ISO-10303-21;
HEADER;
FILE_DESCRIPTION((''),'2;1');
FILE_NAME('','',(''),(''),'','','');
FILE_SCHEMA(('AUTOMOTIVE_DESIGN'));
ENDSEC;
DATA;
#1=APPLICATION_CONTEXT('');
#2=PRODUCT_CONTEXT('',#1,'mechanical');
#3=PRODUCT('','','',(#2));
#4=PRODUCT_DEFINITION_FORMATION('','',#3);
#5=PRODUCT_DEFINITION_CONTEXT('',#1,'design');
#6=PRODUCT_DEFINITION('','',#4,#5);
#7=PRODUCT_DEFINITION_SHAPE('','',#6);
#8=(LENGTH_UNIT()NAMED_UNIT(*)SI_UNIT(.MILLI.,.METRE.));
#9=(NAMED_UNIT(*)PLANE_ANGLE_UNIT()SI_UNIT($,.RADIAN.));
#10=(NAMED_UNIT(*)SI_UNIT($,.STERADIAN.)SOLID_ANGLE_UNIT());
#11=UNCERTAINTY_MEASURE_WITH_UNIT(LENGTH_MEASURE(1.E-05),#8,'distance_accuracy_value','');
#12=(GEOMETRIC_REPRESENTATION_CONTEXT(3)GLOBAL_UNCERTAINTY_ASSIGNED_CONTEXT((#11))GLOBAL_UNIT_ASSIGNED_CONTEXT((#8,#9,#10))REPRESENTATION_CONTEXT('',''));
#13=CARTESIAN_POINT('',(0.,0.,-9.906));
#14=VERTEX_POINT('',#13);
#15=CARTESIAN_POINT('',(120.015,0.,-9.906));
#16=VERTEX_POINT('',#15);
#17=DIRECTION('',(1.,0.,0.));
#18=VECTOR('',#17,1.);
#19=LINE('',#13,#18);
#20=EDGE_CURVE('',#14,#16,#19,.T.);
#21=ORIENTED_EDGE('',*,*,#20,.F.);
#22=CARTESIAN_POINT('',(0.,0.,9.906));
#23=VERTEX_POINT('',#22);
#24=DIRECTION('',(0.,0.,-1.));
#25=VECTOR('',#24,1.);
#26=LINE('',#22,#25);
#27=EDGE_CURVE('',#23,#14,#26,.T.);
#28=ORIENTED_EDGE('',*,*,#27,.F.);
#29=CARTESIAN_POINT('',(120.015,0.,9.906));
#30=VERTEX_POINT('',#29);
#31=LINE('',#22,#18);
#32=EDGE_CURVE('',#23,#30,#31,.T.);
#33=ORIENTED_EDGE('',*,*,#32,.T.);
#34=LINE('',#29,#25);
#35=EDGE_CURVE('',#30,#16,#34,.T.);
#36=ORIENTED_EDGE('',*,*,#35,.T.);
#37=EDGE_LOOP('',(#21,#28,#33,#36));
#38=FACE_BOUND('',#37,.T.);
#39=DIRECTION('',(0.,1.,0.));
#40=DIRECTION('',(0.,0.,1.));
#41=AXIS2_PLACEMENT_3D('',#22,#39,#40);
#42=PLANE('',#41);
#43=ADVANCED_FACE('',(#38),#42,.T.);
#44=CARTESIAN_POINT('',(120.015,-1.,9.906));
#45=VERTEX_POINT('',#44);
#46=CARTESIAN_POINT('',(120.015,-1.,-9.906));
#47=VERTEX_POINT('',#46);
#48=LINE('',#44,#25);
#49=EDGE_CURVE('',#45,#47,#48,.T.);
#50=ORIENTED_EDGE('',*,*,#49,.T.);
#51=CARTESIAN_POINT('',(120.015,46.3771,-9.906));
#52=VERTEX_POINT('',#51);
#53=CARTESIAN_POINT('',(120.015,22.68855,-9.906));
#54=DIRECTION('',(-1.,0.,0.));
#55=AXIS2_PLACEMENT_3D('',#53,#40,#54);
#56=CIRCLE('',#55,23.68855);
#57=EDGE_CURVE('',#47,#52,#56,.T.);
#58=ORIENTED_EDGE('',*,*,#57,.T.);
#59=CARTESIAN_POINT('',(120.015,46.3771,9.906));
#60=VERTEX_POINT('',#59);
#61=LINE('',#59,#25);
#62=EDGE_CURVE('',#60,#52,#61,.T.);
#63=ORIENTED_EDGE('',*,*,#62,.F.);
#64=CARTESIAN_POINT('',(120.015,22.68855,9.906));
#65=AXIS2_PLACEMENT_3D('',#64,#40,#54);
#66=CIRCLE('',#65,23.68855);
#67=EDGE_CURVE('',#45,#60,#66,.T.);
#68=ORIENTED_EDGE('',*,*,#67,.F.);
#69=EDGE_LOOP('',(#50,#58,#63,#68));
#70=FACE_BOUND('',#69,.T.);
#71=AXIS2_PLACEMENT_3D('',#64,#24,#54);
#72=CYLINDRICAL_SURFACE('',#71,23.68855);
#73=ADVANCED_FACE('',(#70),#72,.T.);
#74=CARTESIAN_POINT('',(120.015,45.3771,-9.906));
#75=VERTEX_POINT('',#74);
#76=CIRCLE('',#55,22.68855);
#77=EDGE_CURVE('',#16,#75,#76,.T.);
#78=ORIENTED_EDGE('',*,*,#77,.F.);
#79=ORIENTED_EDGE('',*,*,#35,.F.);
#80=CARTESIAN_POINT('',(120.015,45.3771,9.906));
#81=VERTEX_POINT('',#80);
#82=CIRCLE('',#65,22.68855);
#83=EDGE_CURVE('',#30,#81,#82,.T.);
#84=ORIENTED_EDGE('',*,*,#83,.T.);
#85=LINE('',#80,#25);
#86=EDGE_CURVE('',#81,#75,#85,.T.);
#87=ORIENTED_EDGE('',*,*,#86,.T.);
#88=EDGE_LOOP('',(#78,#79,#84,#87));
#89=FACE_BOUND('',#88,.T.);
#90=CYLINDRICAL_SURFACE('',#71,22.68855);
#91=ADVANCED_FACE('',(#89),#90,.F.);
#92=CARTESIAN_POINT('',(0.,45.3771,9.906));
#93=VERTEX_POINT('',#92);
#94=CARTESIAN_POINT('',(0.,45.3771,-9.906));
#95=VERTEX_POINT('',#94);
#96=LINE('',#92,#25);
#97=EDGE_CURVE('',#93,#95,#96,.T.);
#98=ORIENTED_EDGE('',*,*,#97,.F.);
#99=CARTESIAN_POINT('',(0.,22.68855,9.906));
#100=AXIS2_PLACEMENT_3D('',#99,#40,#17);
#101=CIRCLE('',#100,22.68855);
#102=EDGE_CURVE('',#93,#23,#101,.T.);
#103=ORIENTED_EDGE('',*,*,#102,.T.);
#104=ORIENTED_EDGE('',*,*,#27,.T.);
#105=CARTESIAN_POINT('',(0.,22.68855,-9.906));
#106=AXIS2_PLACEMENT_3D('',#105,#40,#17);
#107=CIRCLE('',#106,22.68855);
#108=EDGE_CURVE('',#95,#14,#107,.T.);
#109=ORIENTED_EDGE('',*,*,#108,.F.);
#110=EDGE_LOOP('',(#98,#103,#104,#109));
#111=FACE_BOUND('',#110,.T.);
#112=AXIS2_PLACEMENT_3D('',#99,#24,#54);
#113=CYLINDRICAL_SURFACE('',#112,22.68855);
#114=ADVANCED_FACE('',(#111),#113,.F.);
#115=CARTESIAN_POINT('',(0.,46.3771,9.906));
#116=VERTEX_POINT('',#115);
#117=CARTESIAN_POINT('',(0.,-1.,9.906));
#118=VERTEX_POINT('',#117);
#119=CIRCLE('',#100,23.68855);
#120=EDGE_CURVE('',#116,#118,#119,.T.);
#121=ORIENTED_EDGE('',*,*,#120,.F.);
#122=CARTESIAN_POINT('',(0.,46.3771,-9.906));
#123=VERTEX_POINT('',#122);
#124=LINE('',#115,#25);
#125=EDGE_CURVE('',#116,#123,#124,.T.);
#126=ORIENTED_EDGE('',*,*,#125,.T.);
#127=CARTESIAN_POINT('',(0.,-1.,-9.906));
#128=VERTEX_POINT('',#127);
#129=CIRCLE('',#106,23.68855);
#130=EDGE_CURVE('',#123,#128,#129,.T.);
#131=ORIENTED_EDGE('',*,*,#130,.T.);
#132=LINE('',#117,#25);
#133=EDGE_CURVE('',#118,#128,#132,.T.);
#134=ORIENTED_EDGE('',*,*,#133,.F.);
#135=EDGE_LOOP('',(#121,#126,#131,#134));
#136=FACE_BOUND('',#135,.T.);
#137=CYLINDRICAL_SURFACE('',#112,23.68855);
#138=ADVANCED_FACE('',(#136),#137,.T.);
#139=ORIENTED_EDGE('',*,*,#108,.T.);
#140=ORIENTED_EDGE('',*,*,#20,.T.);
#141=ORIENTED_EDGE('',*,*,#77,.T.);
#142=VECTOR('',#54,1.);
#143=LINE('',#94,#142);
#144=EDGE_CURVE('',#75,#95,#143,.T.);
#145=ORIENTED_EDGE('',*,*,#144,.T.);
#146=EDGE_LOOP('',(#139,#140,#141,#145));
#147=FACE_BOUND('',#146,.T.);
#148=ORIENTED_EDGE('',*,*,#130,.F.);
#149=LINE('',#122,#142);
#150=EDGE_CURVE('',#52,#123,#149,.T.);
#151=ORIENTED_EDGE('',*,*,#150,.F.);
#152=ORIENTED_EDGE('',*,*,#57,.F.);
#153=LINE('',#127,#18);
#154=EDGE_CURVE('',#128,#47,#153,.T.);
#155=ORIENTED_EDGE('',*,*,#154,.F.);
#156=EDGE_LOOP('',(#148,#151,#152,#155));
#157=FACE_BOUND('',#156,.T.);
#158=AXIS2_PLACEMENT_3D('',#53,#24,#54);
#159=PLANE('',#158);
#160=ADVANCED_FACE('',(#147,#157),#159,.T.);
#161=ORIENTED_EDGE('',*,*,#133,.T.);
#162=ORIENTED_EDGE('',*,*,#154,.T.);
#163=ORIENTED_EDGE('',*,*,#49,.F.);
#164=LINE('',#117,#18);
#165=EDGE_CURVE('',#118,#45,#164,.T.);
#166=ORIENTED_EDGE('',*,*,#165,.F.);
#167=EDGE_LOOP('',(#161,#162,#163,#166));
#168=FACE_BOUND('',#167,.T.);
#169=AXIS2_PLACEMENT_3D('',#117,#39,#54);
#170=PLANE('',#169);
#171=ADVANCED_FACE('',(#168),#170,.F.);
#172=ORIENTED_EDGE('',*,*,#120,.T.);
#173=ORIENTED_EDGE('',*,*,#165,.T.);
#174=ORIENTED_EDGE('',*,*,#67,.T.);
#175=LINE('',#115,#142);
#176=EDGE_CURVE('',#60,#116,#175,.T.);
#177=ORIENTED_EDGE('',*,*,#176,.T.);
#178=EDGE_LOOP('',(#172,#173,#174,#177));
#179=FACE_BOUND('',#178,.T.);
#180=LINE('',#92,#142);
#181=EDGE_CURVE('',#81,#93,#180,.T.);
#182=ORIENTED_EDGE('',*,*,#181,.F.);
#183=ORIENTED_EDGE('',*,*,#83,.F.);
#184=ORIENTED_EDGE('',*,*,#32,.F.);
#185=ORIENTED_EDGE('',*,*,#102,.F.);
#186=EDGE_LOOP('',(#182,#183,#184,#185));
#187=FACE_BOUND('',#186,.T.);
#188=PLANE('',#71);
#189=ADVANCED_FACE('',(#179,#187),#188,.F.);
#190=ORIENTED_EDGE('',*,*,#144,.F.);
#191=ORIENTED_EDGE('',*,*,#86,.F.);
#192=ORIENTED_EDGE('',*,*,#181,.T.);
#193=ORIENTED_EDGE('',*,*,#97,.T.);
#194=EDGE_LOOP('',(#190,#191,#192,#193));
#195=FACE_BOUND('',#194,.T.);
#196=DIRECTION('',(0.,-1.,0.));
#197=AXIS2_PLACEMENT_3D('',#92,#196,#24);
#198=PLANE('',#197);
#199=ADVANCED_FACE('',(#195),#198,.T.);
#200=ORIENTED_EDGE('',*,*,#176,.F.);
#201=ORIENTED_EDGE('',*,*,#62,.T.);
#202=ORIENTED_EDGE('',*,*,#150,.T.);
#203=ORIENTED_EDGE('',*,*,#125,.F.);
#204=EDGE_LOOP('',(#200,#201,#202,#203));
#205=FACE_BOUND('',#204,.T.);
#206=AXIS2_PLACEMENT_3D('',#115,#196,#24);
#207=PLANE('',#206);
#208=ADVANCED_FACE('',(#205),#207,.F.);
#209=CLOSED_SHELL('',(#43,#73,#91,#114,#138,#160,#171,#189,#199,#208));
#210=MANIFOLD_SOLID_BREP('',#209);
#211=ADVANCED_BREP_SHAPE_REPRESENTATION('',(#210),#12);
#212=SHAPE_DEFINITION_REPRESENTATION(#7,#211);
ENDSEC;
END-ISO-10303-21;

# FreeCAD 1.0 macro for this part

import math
import FreeCAD as App
import Part
import Sketcher
from FreeCAD import Vector
Q = App.Units.Quantity

doc = App.newDocument("Part")
params = doc.addObject("Spreadsheet::Sheet", "Params")
for row, (alias, value) in enumerate([
    ("sketch1_width", "4.725 in"),
    ("pad1_length", "0.78 in"),
], start=1):
    params.set(f"A{row}", alias)
    params.set(f"B{row}", "=" + value)
    params.setAlias(f"B{row}", alias)

body = doc.addObject("PartDesign::Body", "Body")

# Sketch on XY plane
sketch1 = body.newObject("Sketcher::SketchObject", "Sketch")
sketch1.AttachmentSupport = (doc.getObject("XY_Plane"), [""])
sketch1.MapMode = "FlatFace"
sketch1.addGeometry([
    Part.LineSegment(Vector(120, 46, 0), Vector(0, 46, 0)),  # 0
    Part.ArcOfCircle(Part.Circle(Vector(0, 23, 0), Vector(0, 0, 1), 24), math.radians(90), math.radians(270)),  # 1
    Part.LineSegment(Vector(0, -1, 0), Vector(120, -1, 0)),  # 2
    Part.ArcOfCircle(Part.Circle(Vector(120, 23, 0), Vector(0, 0, 1), 24), math.radians(-90), math.radians(90)),  # 3
    Part.LineSegment(Vector(0, 45, 0), Vector(120, 45, 0)),  # 4
    Part.ArcOfCircle(Part.Circle(Vector(120, 23, 0), Vector(0, 0, 1), 23), math.radians(-90), math.radians(90)),  # 5
    Part.LineSegment(Vector(120, 0, 0), Vector(0, 0, 0)),  # 6
    Part.ArcOfCircle(Part.Circle(Vector(0, 23, 0), Vector(0, 0, 1), 23), math.radians(90), math.radians(270)),  # 7
], False)
sketch1.addConstraint([
    Sketcher.Constraint("Tangent", 0, 2, 1, 1),
    Sketcher.Constraint("Tangent", 1, 2, 2, 1),
    Sketcher.Constraint("Tangent", 2, 2, 3, 1),
    Sketcher.Constraint("Tangent", 3, 2, 0, 1),
    Sketcher.Constraint("Tangent", 4, 2, 5, 2),
    Sketcher.Constraint("Tangent", 5, 1, 6, 1),
    Sketcher.Constraint("Tangent", 6, 2, 7, 2),
    Sketcher.Constraint("Tangent", 7, 1, 4, 1),
    Sketcher.Constraint("Horizontal", 0),
    Sketcher.Constraint("Horizontal", 2),
    Sketcher.Constraint("Horizontal", 4),
    Sketcher.Constraint("Horizontal", 6),
    Sketcher.Constraint("Coincident", 6, 2, -1, 1),
    Sketcher.Constraint("Coincident", 5, 3, 3, 3),
    Sketcher.Constraint("PointOnObject", 1, 3, -2),
    Sketcher.Constraint("DistanceX", 0, 2, 0, 1, Q("4.725 in")),
    Sketcher.Constraint("Radius", 1, Q("23.68855 mm")),
    Sketcher.Constraint("Radius", 5, Q("22.68855 mm")),
])
sketch1.setExpression("Constraints[15]", "Params.sketch1_width")
pad1 = body.newObject("PartDesign::Pad", "Pad")
pad1.Profile = sketch1
pad1.setExpression("Length", "Params.pad1_length")
pad1.Midplane = True

doc.recompute()
